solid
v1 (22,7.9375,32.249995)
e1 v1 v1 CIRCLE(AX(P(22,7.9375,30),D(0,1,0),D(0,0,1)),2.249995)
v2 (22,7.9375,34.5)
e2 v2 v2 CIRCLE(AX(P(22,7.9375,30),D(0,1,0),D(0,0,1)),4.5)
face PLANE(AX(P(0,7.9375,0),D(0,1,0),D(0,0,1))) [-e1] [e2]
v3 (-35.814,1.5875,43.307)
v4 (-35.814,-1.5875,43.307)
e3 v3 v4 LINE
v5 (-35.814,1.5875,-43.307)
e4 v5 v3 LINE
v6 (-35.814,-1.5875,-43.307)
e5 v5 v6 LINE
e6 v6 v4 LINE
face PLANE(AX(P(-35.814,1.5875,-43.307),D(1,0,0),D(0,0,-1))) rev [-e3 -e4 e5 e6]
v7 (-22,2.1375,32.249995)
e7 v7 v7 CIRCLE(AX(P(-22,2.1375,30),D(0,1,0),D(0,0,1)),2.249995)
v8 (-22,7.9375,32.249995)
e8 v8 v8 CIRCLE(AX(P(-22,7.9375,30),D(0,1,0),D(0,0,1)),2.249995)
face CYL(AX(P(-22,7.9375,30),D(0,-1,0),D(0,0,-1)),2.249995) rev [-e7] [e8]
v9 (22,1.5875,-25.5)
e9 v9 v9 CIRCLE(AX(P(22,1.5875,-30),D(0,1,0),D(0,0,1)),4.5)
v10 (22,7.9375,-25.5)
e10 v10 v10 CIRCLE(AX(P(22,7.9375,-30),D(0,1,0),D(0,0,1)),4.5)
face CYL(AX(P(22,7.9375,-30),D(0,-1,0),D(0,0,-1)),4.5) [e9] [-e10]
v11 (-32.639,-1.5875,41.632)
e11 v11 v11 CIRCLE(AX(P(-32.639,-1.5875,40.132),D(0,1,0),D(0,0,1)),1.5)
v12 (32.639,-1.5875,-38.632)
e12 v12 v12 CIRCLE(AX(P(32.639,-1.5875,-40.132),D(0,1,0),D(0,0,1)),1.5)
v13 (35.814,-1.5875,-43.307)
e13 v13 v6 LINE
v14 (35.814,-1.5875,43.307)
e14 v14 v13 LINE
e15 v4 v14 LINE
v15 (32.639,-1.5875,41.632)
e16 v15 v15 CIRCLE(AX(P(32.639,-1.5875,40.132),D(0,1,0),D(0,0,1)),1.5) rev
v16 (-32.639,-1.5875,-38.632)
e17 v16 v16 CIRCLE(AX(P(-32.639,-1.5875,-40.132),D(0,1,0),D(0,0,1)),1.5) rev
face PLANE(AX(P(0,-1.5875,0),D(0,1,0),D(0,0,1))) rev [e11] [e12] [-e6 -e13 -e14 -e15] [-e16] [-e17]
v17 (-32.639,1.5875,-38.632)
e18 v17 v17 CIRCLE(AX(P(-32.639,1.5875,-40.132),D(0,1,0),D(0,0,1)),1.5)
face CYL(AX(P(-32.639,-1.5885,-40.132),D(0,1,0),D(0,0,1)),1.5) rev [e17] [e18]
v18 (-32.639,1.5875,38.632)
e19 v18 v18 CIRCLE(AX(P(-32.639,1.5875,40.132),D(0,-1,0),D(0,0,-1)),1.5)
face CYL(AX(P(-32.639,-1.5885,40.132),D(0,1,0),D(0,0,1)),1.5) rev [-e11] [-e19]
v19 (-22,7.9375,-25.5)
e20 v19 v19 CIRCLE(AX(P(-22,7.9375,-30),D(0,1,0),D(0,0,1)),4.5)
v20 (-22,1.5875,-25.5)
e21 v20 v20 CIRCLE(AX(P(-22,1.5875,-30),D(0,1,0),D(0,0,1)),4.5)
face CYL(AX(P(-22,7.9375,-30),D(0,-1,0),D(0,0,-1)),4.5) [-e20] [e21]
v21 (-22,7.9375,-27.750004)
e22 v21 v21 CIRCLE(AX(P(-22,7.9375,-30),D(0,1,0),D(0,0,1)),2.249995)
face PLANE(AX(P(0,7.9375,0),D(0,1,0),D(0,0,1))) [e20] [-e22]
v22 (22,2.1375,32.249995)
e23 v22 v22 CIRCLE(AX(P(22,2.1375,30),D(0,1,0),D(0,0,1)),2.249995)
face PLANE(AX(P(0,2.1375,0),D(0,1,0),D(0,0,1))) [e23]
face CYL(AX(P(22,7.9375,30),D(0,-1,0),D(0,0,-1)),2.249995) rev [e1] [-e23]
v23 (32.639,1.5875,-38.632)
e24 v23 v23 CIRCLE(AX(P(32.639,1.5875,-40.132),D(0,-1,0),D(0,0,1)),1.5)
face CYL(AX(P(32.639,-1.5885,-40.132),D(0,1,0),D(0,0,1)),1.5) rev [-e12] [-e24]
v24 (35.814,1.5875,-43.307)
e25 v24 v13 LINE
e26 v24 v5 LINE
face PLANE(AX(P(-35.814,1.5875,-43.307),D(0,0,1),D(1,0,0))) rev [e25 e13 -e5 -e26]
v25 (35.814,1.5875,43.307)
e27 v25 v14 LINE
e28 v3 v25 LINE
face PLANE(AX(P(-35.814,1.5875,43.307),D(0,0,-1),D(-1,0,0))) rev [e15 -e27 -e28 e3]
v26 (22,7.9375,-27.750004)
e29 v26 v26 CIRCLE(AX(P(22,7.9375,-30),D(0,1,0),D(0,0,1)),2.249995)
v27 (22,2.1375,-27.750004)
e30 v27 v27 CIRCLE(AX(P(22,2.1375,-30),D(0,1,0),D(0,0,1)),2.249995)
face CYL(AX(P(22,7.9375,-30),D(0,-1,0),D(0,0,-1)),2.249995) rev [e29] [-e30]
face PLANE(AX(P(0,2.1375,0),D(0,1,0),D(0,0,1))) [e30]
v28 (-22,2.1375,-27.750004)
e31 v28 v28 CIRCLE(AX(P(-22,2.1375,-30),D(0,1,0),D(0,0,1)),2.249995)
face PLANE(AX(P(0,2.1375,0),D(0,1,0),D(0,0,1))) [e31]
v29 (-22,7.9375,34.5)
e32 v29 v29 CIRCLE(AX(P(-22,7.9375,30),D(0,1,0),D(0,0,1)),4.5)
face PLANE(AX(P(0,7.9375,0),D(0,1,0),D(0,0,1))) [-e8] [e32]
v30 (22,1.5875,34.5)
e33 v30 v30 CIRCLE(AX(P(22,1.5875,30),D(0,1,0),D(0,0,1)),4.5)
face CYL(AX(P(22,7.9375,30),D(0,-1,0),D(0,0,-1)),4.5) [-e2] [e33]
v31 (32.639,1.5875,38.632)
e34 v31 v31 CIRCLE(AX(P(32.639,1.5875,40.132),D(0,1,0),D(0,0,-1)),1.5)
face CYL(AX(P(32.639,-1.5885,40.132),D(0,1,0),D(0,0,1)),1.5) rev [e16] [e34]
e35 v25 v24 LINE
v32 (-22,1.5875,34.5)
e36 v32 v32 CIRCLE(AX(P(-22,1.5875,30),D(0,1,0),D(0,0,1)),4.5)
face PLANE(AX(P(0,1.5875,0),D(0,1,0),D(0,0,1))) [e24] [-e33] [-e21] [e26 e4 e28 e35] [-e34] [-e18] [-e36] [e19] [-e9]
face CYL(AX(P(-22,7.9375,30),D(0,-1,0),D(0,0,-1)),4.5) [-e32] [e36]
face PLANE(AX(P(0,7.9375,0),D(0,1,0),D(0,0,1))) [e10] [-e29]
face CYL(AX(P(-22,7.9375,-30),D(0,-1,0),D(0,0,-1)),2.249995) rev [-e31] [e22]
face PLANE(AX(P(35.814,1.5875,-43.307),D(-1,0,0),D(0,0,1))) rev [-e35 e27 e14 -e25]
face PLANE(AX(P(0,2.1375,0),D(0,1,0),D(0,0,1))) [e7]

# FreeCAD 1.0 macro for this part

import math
import FreeCAD as App
import Part
import Sketcher
Q = App.Units.Quantity

doc = App.newDocument("Part")
body = doc.addObject("PartDesign::Body", "Body")

# Sketch on XZ plane
sketch1 = body.newObject("Sketcher::SketchObject", "Sketch")
sketch1.AttachmentSupport = (doc.getObject("XZ_Plane"), [""])
sketch1.MapMode = "FlatFace"
sketch1.addGeometry(Part.LineSegment(App.Vector(-36, -43, 0), App.Vector(-36, 43, 0)), False)
sketch1.addGeometry(Part.LineSegment(App.Vector(-36, 43, 0), App.Vector(36, 43, 0)), False)
sketch1.addGeometry(Part.LineSegment(App.Vector(36, 43, 0), App.Vector(36, -43, 0)), False)
sketch1.addGeometry(Part.LineSegment(App.Vector(36, -43, 0), App.Vector(-36, -43, 0)), False)
sketch1.addConstraint(Sketcher.Constraint("Coincident", 0, 2, 1, 1))
sketch1.addConstraint(Sketcher.Constraint("Coincident", 1, 2, 2, 1))
sketch1.addConstraint(Sketcher.Constraint("Coincident", 2, 2, 3, 1))
sketch1.addConstraint(Sketcher.Constraint("Coincident", 3, 2, 0, 1))
sketch1.addConstraint(Sketcher.Constraint("Vertical", 0))
sketch1.addConstraint(Sketcher.Constraint("Horizontal", 1))
sketch1.addConstraint(Sketcher.Constraint("Vertical", 2))
sketch1.addConstraint(Sketcher.Constraint("Horizontal", 3))
sketch1.addConstraint(Sketcher.Constraint("Symmetric", 0, 2, 2, 2, -1, 1))
sketch1.addConstraint(Sketcher.Constraint("DistanceX", 1, 1, 1, 2, Q("2.82 in")))
sketch1.addConstraint(Sketcher.Constraint("DistanceY", 0, 1, 0, 2, Q("3.41 in")))
pad1 = body.newObject("PartDesign::Pad", "Pad")
pad1.Profile = sketch1
pad1.Length = Q("0.125 in")
pad1.Midplane = True

# Sketch on XZ plane
sketch2 = body.newObject("Sketcher::SketchObject", "Sketch001")
sketch2.AttachmentSupport = (doc.getObject("XZ_Plane"), [""])
sketch2.MapMode = "FlatFace"
sketch2.AttachmentOffset = App.Placement(App.Vector(0, 0, -0.0625 * 25.4), App.Rotation())
sketch2.addGeometry(Part.Circle(App.Vector(-32.6, -40.1, 0), App.Vector(0, 0, 1), 1.5), False)
sketch2.addConstraint(Sketcher.Constraint("Diameter", 0, Q("3 mm")))
sketch2.addConstraint(Sketcher.Constraint("DistanceY", 0, 3, -1, 1, Q("1.58 in")))
sketch2.addConstraint(Sketcher.Constraint("DistanceX", 0, 3, -1, 1, Q("1.285 in")))
pocket1 = body.newObject("PartDesign::Pocket", "Pocket")
pocket1.Profile = sketch2
pocket1.Length = Q("0.125 in")
pocket1.Reversed = True
doc.recompute()

mirrored = body.newObject("PartDesign::Mirrored", "Mirrored")
mirrored.Originals = [pocket1]
mirrored.MirrorPlane = (doc.getObject("YZ_Plane"), [""])
body.Tip = mirrored
doc.recompute()

mirrored2 = body.newObject("PartDesign::Mirrored", "Mirrored001")
mirrored2.Originals = [pocket1]
mirrored2.MirrorPlane = (doc.getObject("XY_Plane"), [""])
body.Tip = mirrored2

# Sketch on XZ plane
sketch3 = body.newObject("Sketcher::SketchObject", "Sketch002")
sketch3.AttachmentSupport = (doc.getObject("XZ_Plane"), [""])
sketch3.MapMode = "FlatFace"
sketch3.AttachmentOffset = App.Placement(App.Vector(0, 0, -0.0625 * 25.4), App.Rotation())
sketch3.addGeometry(Part.Circle(App.Vector(32.6, 40.1, 0), App.Vector(0, 0, 1), 1.5), False)
sketch3.addConstraint(Sketcher.Constraint("Diameter", 0, Q("3 mm")))
sketch3.addConstraint(Sketcher.Constraint("DistanceY", -1, 1, 0, 3, Q("1.58 in")))
sketch3.addConstraint(Sketcher.Constraint("DistanceX", -1, 1, 0, 3, Q("1.285 in")))
pocket2 = body.newObject("PartDesign::Pocket", "Pocket001")
pocket2.Profile = sketch3
pocket2.Length = Q("0.125 in")
pocket2.Reversed = True

# Sketch on XZ plane
sketch4 = body.newObject("Sketcher::SketchObject", "Sketch003")
sketch4.AttachmentSupport = (doc.getObject("XZ_Plane"), [""])
sketch4.MapMode = "FlatFace"
sketch4.AttachmentOffset = App.Placement(App.Vector(0, 0, -0.0625 * 25.4), App.Rotation())
sketch4.addGeometry(Part.ArcOfCircle(Part.Circle(App.Vector(-22, -30, 0), App.Vector(0, 0, 1), 4.5), math.radians(90), math.radians(360)), False)
sketch4.addGeometry(Part.ArcOfCircle(Part.Circle(App.Vector(-22, -30, 0), App.Vector(0, 0, 1), 4.5), math.radians(0), math.radians(90)), False)
sketch4.addGeometry(Part.ArcOfCircle(Part.Circle(App.Vector(-22, -30, 0), App.Vector(0, 0, 1), 2.2), math.radians(90), math.radians(360)), False)
sketch4.addGeometry(Part.ArcOfCircle(Part.Circle(App.Vector(-22, -30, 0), App.Vector(0, 0, 1), 2.2), math.radians(0), math.radians(90)), False)
sketch4.addGeometry(Part.ArcOfCircle(Part.Circle(App.Vector(22, -30, 0), App.Vector(0, 0, 1), 4.5), math.radians(180), math.radians(360)), False)
sketch4.addGeometry(Part.ArcOfCircle(Part.Circle(App.Vector(22, -30, 0), App.Vector(0, 0, 1), 4.5), math.radians(90), math.radians(180)), False)
sketch4.addGeometry(Part.ArcOfCircle(Part.Circle(App.Vector(22, -30, 0), App.Vector(0, 0, 1), 4.5), math.radians(0), math.radians(90)), False)
sketch4.addGeometry(Part.ArcOfCircle(Part.Circle(App.Vector(22, -30, 0), App.Vector(0, 0, 1), 2.2), math.radians(0), math.radians(90)), False)
sketch4.addGeometry(Part.ArcOfCircle(Part.Circle(App.Vector(22, -30, 0), App.Vector(0, 0, 1), 2.2), math.radians(90), math.radians(180)), False)
sketch4.addGeometry(Part.ArcOfCircle(Part.Circle(App.Vector(22, -30, 0), App.Vector(0, 0, 1), 2.2), math.radians(180), math.radians(360)), False)
sketch4.addGeometry(Part.ArcOfCircle(Part.Circle(App.Vector(22, 30, 0), App.Vector(0, 0, 1), 4.5), math.radians(-90), math.radians(0)), False)
sketch4.addGeometry(Part.ArcOfCircle(Part.Circle(App.Vector(22, 30, 0), App.Vector(0, 0, 1), 4.5), math.radians(-180), math.radians(-90)), False)
sketch4.addGeometry(Part.ArcOfCircle(Part.Circle(App.Vector(22, 30, 0), App.Vector(0, 0, 1), 4.5), math.radians(0), math.radians(180)), False)
sketch4.addGeometry(Part.ArcOfCircle(Part.Circle(App.Vector(22, 30, 0), App.Vector(0, 0, 1), 2.2), math.radians(0), math.radians(180)), False)
sketch4.addGeometry(Part.ArcOfCircle(Part.Circle(App.Vector(22, 30, 0), App.Vector(0, 0, 1), 2.2), math.radians(180), math.radians(270)), False)
sketch4.addGeometry(Part.ArcOfCircle(Part.Circle(App.Vector(22, 30, 0), App.Vector(0, 0, 1), 2.2), math.radians(-90), math.radians(0)), False)
sketch4.addGeometry(Part.ArcOfCircle(Part.Circle(App.Vector(-22, 30, 0), App.Vector(0, 0, 1), 4.5), math.radians(-90), math.radians(0)), False)
sketch4.addGeometry(Part.ArcOfCircle(Part.Circle(App.Vector(-22, 30, 0), App.Vector(0, 0, 1), 4.5), math.radians(0), math.radians(270)), False)
sketch4.addGeometry(Part.ArcOfCircle(Part.Circle(App.Vector(-22, 30, 0), App.Vector(0, 0, 1), 2.2), math.radians(-90), math.radians(0)), False)
sketch4.addGeometry(Part.ArcOfCircle(Part.Circle(App.Vector(-22, 30, 0), App.Vector(0, 0, 1), 2.2), math.radians(0), math.radians(270)), False)
sketch4.addConstraint(Sketcher.Constraint("Tangent", 0, 1, 1, 2))
sketch4.addConstraint(Sketcher.Constraint("Coincident", 1, 1, 0, 2))
sketch4.addConstraint(Sketcher.Constraint("Tangent", 2, 1, 3, 2))
sketch4.addConstraint(Sketcher.Constraint("Coincident", 3, 1, 2, 2))
sketch4.addConstraint(Sketcher.Constraint("Tangent", 4, 1, 5, 2))
sketch4.addConstraint(Sketcher.Constraint("Tangent", 5, 1, 6, 2))
sketch4.addConstraint(Sketcher.Constraint("Tangent", 6, 1, 4, 2))
sketch4.addConstraint(Sketcher.Constraint("Tangent", 7, 2, 8, 1))
sketch4.addConstraint(Sketcher.Constraint("Tangent", 8, 2, 9, 1))
sketch4.addConstraint(Sketcher.Constraint("Tangent", 9, 2, 7, 1))
sketch4.addConstraint(Sketcher.Constraint("Tangent", 10, 1, 11, 2))
sketch4.addConstraint(Sketcher.Constraint("Tangent", 11, 1, 12, 2))
sketch4.addConstraint(Sketcher.Constraint("Tangent", 12, 1, 10, 2))
sketch4.addConstraint(Sketcher.Constraint("Tangent", 13, 2, 14, 1))
sketch4.addConstraint(Sketcher.Constraint("Tangent", 14, 2, 15, 1))
sketch4.addConstraint(Sketcher.Constraint("Tangent", 15, 2, 13, 1))
sketch4.addConstraint(Sketcher.Constraint("Tangent", 16, 1, 17, 2))
sketch4.addConstraint(Sketcher.Constraint("Coincident", 17, 1, 16, 2))
sketch4.addConstraint(Sketcher.Constraint("Tangent", 18, 1, 19, 2))
sketch4.addConstraint(Sketcher.Constraint("Coincident", 19, 1, 18, 2))
sketch4.addConstraint(Sketcher.Constraint("Coincident", 2, 3, 0, 3))
sketch4.addConstraint(Sketcher.Constraint("Coincident", 7, 3, 4, 3))
sketch4.addConstraint(Sketcher.Constraint("Coincident", 13, 3, 10, 3))
sketch4.addConstraint(Sketcher.Constraint("Coincident", 18, 3, 16, 3))
sketch4.addConstraint(Sketcher.Constraint("Equal", 1, 4))
sketch4.addConstraint(Sketcher.Constraint("Equal", 3, 7))
sketch4.addConstraint(Sketcher.Constraint("Equal", 6, 10))
sketch4.addConstraint(Sketcher.Constraint("Equal", 9, 13))
sketch4.addConstraint(Sketcher.Constraint("Equal", 12, 16))
sketch4.addConstraint(Sketcher.Constraint("Equal", 15, 18))
sketch4.addConstraint(Sketcher.Constraint("Symmetric", 0, 3, 10, 3, -1, 1))
sketch4.addConstraint(Sketcher.Constraint("Symmetric", 4, 3, 16, 3, -1, 1))
sketch4.addConstraint(Sketcher.Constraint("Symmetric", 0, 3, 4, 3, -2))
sketch4.addConstraint(Sketcher.Constraint("Horizontal", 9, 3, 1, 1))
sketch4.addConstraint(Sketcher.Constraint("Horizontal", 1, 1, 3, 1))
sketch4.addConstraint(Sketcher.Constraint("Horizontal", 3, 1, 4, 1))
sketch4.addConstraint(Sketcher.Constraint("Horizontal", 4, 1, 6, 1))
sketch4.addConstraint(Sketcher.Constraint("Horizontal", 6, 1, 8, 2))
sketch4.addConstraint(Sketcher.Constraint("Horizontal", 8, 2, 9, 2))
sketch4.addConstraint(Sketcher.Constraint("Horizontal", 19, 3, 11, 1))
sketch4.addConstraint(Sketcher.Constraint("Horizontal", 11, 1, 12, 1))
sketch4.addConstraint(Sketcher.Constraint("Horizontal", 12, 1, 13, 2))
sketch4.addConstraint(Sketcher.Constraint("Horizontal", 13, 2, 15, 2))
sketch4.addConstraint(Sketcher.Constraint("Horizontal", 15, 2, 17, 1))
sketch4.addConstraint(Sketcher.Constraint("Horizontal", 17, 1, 19, 1))
sketch4.addConstraint(Sketcher.Constraint("Vertical", 19, 3, 0, 1))
sketch4.addConstraint(Sketcher.Constraint("Vertical", 0, 1, 2, 1))
sketch4.addConstraint(Sketcher.Constraint("Vertical", 15, 3, 5, 1))
sketch4.addConstraint(Sketcher.Constraint("Vertical", 5, 1, 7, 2))
sketch4.addConstraint(Sketcher.Constraint("Vertical", 7, 2, 10, 1))
sketch4.addConstraint(Sketcher.Constraint("Vertical", 10, 1, 14, 2))
sketch4.addConstraint(Sketcher.Constraint("Vertical", 2, 1, 16, 1))
sketch4.addConstraint(Sketcher.Constraint("Vertical", 16, 1, 18, 1))
sketch4.addConstraint(Sketcher.Constraint("Radius", 0, Q("4.5 mm")))
sketch4.addConstraint(Sketcher.Constraint("Radius", 2, Q("2.249995 mm")))
sketch4.addConstraint(Sketcher.Constraint("DistanceX", 0, 3, -1, 1, Q("22 mm")))
sketch4.addConstraint(Sketcher.Constraint("DistanceY", 0, 3, -1, 1, Q("30 mm")))
pad2 = body.newObject("PartDesign::Pad", "Pad001")
pad2.Profile = sketch4
pad2.Length = Q("0.25 in")
pad2.Reversed = True

# Sketch on XZ plane
sketch5 = body.newObject("Sketcher::SketchObject", "Sketch004")
sketch5.AttachmentSupport = (doc.getObject("XZ_Plane"), [""])
sketch5.MapMode = "FlatFace"
sketch5.AttachmentOffset = App.Placement(App.Vector(0, 0, -0.0625 * 25.4), App.Rotation())
sketch5.addGeometry(Part.ArcOfCircle(Part.Circle(App.Vector(-22, -30, 0), App.Vector(0, 0, 1), 2.2), math.radians(90), math.radians(360)), False)
sketch5.addGeometry(Part.ArcOfCircle(Part.Circle(App.Vector(-22, -30, 0), App.Vector(0, 0, 1), 2.2), math.radians(0), math.radians(90)), False)
sketch5.addGeometry(Part.ArcOfCircle(Part.Circle(App.Vector(22, -30, 0), App.Vector(0, 0, 1), 2.2), math.radians(180), math.radians(360)), False)
sketch5.addGeometry(Part.ArcOfCircle(Part.Circle(App.Vector(22, -30, 0), App.Vector(0, 0, 1), 2.2), math.radians(90), math.radians(180)), False)
sketch5.addGeometry(Part.ArcOfCircle(Part.Circle(App.Vector(22, -30, 0), App.Vector(0, 0, 1), 2.2), math.radians(0), math.radians(90)), False)
sketch5.addGeometry(Part.ArcOfCircle(Part.Circle(App.Vector(22, 30, 0), App.Vector(0, 0, 1), 2.2), math.radians(-90), math.radians(0)), False)
sketch5.addGeometry(Part.ArcOfCircle(Part.Circle(App.Vector(22, 30, 0), App.Vector(0, 0, 1), 2.2), math.radians(180), math.radians(270)), False)
sketch5.addGeometry(Part.ArcOfCircle(Part.Circle(App.Vector(22, 30, 0), App.Vector(0, 0, 1), 2.2), math.radians(0), math.radians(180)), False)
sketch5.addGeometry(Part.ArcOfCircle(Part.Circle(App.Vector(-22, 30, 0), App.Vector(0, 0, 1), 2.2), math.radians(-90), math.radians(0)), False)
sketch5.addGeometry(Part.ArcOfCircle(Part.Circle(App.Vector(-22, 30, 0), App.Vector(0, 0, 1), 2.2), math.radians(0), math.radians(270)), False)
sketch5.addConstraint(Sketcher.Constraint("Tangent", 0, 1, 1, 2))
sketch5.addConstraint(Sketcher.Constraint("Coincident", 1, 1, 0, 2))
sketch5.addConstraint(Sketcher.Constraint("Tangent", 2, 1, 3, 2))
sketch5.addConstraint(Sketcher.Constraint("Tangent", 3, 1, 4, 2))
sketch5.addConstraint(Sketcher.Constraint("Tangent", 4, 1, 2, 2))
sketch5.addConstraint(Sketcher.Constraint("Tangent", 5, 1, 6, 2))
sketch5.addConstraint(Sketcher.Constraint("Tangent", 6, 1, 7, 2))
sketch5.addConstraint(Sketcher.Constraint("Tangent", 7, 1, 5, 2))
sketch5.addConstraint(Sketcher.Constraint("Tangent", 8, 1, 9, 2))
sketch5.addConstraint(Sketcher.Constraint("Coincident", 9, 1, 8, 2))
sketch5.addConstraint(Sketcher.Constraint("Equal", 1, 2))
sketch5.addConstraint(Sketcher.Constraint("Equal", 4, 5))
sketch5.addConstraint(Sketcher.Constraint("Equal", 7, 8))
sketch5.addConstraint(Sketcher.Constraint("Symmetric", 0, 3, 5, 3, -1, 1))
sketch5.addConstraint(Sketcher.Constraint("Symmetric", 2, 3, 8, 3, -1, 1))
sketch5.addConstraint(Sketcher.Constraint("Symmetric", 0, 3, 2, 3, -2))
sketch5.addConstraint(Sketcher.Constraint("Horizontal", 4, 3, 1, 1))
sketch5.addConstraint(Sketcher.Constraint("Horizontal", 1, 1, 2, 1))
sketch5.addConstraint(Sketcher.Constraint("Horizontal", 2, 1, 4, 1))
sketch5.addConstraint(Sketcher.Constraint("Horizontal", 9, 3, 6, 1))
sketch5.addConstraint(Sketcher.Constraint("Horizontal", 6, 1, 7, 1))
sketch5.addConstraint(Sketcher.Constraint("Horizontal", 7, 1, 9, 1))
sketch5.addConstraint(Sketcher.Constraint("Vertical", 9, 3, 0, 1))
sketch5.addConstraint(Sketcher.Constraint("Vertical", 7, 3, 3, 1))
sketch5.addConstraint(Sketcher.Constraint("Vertical", 3, 1, 5, 1))
sketch5.addConstraint(Sketcher.Constraint("Vertical", 0, 1, 8, 1))
sketch5.addConstraint(Sketcher.Constraint("Radius", 0, Q("2.249995 mm")))
sketch5.addConstraint(Sketcher.Constraint("DistanceX", 0, 3, -1, 1, Q("22 mm")))
sketch5.addConstraint(Sketcher.Constraint("DistanceY", 0, 3, -1, 1, Q("30 mm")))
pad3 = body.newObject("PartDesign::Pad", "Pad002")
pad3.Profile = sketch5
pad3.Length = 0.55
pad3.Reversed = True

doc.recompute()
